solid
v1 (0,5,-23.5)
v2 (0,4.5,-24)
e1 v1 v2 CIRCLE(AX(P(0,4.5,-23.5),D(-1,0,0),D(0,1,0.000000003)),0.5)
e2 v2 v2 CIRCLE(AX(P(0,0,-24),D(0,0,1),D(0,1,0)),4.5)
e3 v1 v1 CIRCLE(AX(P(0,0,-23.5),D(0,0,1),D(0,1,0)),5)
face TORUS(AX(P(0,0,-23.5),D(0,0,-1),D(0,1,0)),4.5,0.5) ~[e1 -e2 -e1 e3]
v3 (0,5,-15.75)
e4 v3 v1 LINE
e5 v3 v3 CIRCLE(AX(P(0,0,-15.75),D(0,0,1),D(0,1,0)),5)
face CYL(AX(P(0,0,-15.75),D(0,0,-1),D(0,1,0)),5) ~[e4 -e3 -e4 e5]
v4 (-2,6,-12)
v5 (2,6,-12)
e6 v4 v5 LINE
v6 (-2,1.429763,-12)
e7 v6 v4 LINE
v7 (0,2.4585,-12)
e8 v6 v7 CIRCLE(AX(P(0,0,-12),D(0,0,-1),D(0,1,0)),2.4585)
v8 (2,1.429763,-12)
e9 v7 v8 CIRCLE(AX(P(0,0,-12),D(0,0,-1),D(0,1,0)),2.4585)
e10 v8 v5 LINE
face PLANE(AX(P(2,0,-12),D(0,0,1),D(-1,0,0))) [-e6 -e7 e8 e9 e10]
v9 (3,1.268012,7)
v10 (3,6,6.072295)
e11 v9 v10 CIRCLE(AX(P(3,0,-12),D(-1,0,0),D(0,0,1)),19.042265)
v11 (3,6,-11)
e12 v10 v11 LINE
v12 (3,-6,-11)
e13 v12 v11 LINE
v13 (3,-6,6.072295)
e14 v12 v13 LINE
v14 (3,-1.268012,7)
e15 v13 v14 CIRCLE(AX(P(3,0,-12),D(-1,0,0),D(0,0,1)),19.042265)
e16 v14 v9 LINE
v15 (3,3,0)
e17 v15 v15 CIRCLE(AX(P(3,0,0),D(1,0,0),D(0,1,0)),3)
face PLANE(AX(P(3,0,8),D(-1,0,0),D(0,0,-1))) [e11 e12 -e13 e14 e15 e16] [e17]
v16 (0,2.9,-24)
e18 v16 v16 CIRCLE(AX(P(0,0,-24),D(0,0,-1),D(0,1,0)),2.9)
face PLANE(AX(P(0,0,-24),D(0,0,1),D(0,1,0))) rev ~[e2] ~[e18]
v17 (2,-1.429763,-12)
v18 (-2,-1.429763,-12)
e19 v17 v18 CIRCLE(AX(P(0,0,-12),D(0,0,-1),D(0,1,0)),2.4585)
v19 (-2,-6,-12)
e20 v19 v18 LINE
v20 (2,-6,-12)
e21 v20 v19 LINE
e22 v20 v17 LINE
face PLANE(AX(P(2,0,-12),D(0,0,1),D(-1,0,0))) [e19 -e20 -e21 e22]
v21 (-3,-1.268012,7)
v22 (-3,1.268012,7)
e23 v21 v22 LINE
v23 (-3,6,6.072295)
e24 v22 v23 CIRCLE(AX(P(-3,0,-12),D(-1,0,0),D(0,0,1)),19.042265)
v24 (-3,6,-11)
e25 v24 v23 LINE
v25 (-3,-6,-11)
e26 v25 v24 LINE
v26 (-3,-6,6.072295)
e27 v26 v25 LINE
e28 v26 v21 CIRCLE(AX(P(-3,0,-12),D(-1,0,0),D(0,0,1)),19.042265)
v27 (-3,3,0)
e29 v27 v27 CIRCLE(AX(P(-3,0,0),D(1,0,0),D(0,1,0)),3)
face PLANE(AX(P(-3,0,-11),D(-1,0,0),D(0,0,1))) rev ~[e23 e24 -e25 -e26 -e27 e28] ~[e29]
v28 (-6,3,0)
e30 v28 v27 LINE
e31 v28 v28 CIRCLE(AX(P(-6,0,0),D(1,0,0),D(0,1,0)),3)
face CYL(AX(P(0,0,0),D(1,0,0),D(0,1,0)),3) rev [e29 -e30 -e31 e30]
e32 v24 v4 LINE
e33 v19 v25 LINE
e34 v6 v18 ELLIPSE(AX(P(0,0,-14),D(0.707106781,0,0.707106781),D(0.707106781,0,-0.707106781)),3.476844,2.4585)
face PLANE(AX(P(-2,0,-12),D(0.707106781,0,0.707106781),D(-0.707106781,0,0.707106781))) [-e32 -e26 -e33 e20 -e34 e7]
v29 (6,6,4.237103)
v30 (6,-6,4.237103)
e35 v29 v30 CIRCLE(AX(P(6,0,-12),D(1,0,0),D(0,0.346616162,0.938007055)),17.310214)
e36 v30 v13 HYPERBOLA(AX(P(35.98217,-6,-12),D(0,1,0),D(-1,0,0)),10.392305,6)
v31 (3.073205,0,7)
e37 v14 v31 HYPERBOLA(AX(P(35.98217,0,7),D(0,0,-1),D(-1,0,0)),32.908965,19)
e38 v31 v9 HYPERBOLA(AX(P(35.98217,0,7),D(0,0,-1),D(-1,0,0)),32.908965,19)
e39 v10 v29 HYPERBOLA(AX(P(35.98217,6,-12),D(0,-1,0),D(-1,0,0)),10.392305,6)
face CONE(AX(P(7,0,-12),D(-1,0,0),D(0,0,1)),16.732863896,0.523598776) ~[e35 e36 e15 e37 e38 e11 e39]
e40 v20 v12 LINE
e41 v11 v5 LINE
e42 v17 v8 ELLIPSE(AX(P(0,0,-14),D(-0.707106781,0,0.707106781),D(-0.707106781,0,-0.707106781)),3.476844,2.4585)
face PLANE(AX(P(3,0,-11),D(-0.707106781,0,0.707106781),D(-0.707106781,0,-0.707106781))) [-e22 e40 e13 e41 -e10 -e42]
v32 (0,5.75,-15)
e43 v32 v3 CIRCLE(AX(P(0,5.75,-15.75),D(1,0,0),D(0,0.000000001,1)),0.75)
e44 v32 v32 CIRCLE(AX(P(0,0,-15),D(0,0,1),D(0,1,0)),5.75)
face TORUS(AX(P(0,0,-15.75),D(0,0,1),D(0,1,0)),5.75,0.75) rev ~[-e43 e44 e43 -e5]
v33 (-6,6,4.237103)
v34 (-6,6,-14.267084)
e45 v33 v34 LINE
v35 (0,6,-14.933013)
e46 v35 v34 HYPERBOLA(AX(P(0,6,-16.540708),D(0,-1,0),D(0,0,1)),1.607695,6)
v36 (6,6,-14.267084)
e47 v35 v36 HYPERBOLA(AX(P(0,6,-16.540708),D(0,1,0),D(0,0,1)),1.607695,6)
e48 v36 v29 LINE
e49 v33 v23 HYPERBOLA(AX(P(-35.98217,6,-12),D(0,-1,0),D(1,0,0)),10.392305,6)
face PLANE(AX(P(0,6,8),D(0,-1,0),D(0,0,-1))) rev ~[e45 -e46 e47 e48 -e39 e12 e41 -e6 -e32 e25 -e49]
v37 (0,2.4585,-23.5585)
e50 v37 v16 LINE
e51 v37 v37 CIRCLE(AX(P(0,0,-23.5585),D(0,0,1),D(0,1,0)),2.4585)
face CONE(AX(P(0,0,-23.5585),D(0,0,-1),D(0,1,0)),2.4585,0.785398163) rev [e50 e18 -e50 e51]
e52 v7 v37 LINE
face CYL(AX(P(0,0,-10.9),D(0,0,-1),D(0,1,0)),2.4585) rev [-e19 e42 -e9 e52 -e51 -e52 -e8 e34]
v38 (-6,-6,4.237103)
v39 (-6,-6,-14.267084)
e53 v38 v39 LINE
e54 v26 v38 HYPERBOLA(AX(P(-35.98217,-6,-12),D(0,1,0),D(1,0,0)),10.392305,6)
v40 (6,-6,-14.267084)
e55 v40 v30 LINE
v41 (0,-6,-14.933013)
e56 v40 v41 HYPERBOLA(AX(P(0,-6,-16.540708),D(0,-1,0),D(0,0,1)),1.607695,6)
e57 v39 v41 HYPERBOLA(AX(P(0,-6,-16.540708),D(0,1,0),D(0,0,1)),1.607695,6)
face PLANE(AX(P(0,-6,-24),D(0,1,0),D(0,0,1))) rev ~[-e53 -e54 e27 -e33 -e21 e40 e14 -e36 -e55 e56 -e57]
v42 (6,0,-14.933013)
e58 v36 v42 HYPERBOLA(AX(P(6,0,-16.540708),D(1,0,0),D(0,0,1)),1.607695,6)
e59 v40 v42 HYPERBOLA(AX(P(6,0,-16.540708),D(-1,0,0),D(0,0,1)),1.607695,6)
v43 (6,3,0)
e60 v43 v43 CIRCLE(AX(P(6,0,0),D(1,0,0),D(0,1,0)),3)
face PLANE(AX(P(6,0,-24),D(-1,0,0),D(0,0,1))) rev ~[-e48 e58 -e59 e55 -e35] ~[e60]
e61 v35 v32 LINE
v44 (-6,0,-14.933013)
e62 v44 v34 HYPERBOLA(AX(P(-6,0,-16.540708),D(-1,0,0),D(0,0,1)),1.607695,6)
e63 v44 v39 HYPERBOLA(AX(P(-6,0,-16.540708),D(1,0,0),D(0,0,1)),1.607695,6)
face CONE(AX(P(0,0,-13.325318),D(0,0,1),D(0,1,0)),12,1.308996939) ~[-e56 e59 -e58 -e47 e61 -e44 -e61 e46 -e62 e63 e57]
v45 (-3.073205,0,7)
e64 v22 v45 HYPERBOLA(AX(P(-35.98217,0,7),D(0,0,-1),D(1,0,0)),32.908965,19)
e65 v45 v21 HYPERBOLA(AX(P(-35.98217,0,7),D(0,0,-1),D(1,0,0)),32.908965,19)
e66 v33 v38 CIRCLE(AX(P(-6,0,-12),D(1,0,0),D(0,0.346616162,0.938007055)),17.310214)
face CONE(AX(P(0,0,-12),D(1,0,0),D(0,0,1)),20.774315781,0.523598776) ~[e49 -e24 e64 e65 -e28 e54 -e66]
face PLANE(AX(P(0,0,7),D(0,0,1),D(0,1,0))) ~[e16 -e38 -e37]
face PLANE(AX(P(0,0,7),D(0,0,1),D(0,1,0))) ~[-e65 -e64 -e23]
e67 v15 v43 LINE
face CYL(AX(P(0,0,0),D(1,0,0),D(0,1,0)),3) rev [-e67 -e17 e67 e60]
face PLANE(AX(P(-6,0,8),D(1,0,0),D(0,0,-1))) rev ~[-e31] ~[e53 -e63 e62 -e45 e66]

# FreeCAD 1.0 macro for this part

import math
import FreeCAD as App
import Part
import Sketcher
Q = App.Units.Quantity

doc = App.newDocument("Part")
body = doc.addObject("PartDesign::Body", "Body")

# Sketch on YZ plane
sketch1 = doc.addObject("Sketcher::SketchObject", "Sketch")
body.addObject(sketch1)
sketch1.AttachmentSupport = (doc.YZ_Plane, [""])
sketch1.MapMode = "FlatFace"
sketch1.addGeometry([
    Part.LineSegment(App.Vector(12, 7, 0), App.Vector(0, 7, 0)),  # 0
    Part.LineSegment(App.Vector(0, 7, 0), App.Vector(0, -24, 0)),  # 1
    Part.LineSegment(App.Vector(0, -24, 0), App.Vector(4.5, -24, 0)),  # 2
    Part.ArcOfCircle(Part.Circle(App.Vector(4.5, -23.5, 0), App.Vector(0, 0, 1), 0.5), math.radians(-90), math.radians(0)),  # 3
    Part.LineSegment(App.Vector(5, -23.5, 0), App.Vector(5, -15.75, 0)),  # 4
    Part.ArcOfCircle(Part.Circle(App.Vector(5.75, -15.75, 0), App.Vector(0, 0, 1), 0.75), math.radians(90), math.radians(180)),  # 5
    Part.LineSegment(App.Vector(5.75, -15, 0), App.Vector(12, -13.325318, 0)),  # 6
    Part.LineSegment(App.Vector(12, -13.325318, 0), App.Vector(12, 7, 0)),  # 7
], False)
sketch1.addConstraint([
    Sketcher.Constraint("Coincident", 0, 2, 1, 1),
    Sketcher.Constraint("Coincident", 1, 2, 2, 1),
    Sketcher.Constraint("Tangent", 2, 2, 3, 1),
    Sketcher.Constraint("Tangent", 3, 2, 4, 1),
    Sketcher.Constraint("Tangent", 4, 2, 5, 2),
    Sketcher.Constraint("Coincident", 5, 1, 6, 1),
    Sketcher.Constraint("Coincident", 6, 2, 7, 1),
    Sketcher.Constraint("Coincident", 7, 2, 0, 1),
    Sketcher.Constraint("Horizontal", 0),
    Sketcher.Constraint("Vertical", 1),
    Sketcher.Constraint("Horizontal", 2),
    Sketcher.Constraint("Vertical", 4),
    Sketcher.Constraint("Vertical", 7),
    Sketcher.Constraint("PointOnObject", 0, 2, -2),
    Sketcher.Constraint("Radius", 3, 0.5),
    Sketcher.Constraint("DistanceX", 0, 2, 0, 1, 12.0),
    Sketcher.Constraint("DistanceY", 1, 2, 1, 1, 31.0),
    Sketcher.Constraint("Angle", 6, Q("15 deg")),
    Sketcher.Constraint("Radius", 5, 0.75),
    Sketcher.Constraint("DistanceX", 2, 1, 2, 2, 4.5),
    Sketcher.Constraint("DistanceY", -1, 1, 0, 2, 7.0),
    Sketcher.Constraint("DistanceY", 5, 1, -1, 1, 15.0),
    Sketcher.Constraint("DistanceX", -1, 1, 5, 1, 5.75),
])
revolution = doc.addObject("PartDesign::Revolution", "Revolution")
body.addObject(revolution)
revolution.Profile = sketch1
revolution.ReferenceAxis = (sketch1, ["V_Axis"])
revolution.Angle = 360

# Sketch on XZ plane
sketch2 = doc.addObject("Sketcher::SketchObject", "Sketch001")
body.addObject(sketch2)
sketch2.AttachmentSupport = (doc.XZ_Plane, [""])
sketch2.MapMode = "FlatFace"
sketch2.addGeometry([
    Part.LineSegment(App.Vector(-3, -11, 0), App.Vector(-3, 8, 0)),  # 0
    Part.LineSegment(App.Vector(-3, 8, 0), App.Vector(3, 8, 0)),  # 1
    Part.LineSegment(App.Vector(3, 8, 0), App.Vector(3, -11, 0)),  # 2
    Part.LineSegment(App.Vector(3, -11, 0), App.Vector(2, -12, 0)),  # 3
    Part.LineSegment(App.Vector(2, -12, 0), App.Vector(-2, -12, 0)),  # 4
    Part.LineSegment(App.Vector(-2, -12, 0), App.Vector(-3, -11, 0)),  # 5
], False)
sketch2.addConstraint([
    Sketcher.Constraint("Coincident", 0, 2, 1, 1),
    Sketcher.Constraint("Coincident", 1, 2, 2, 1),
    Sketcher.Constraint("Coincident", 2, 2, 3, 1),
    Sketcher.Constraint("Coincident", 3, 2, 4, 1),
    Sketcher.Constraint("Coincident", 4, 2, 5, 1),
    Sketcher.Constraint("Coincident", 5, 2, 0, 1),
    Sketcher.Constraint("Vertical", 0),
    Sketcher.Constraint("Horizontal", 1),
    Sketcher.Constraint("Vertical", 2),
    Sketcher.Constraint("Horizontal", 4),
    Sketcher.Constraint("Symmetric", 2, 2, 5, 2, -2),
    Sketcher.Constraint("Perpendicular", 3, 5),
    Sketcher.Constraint("Equal", 3, 5),
    Sketcher.Constraint("DistanceX", 1, 1, 1, 2, 6.0),
    Sketcher.Constraint("DistanceX", 4, 2, 4, 1, 4.0),
    Sketcher.Constraint("DistanceY", 0, 1, 0, 2, 19.0),
    Sketcher.Constraint("DistanceY", -1, 1, 0, 2, 8.0),
])
pocket1 = doc.addObject("PartDesign::Pocket", "Pocket")
body.addObject(pocket1)
pocket1.Profile = sketch2
pocket1.Type = "ThroughAll"
pocket1.Midplane = True

# Sketch on YZ plane
sketch3 = doc.addObject("Sketcher::SketchObject", "Sketch002")
body.addObject(sketch3)
sketch3.AttachmentSupport = (doc.YZ_Plane, [""])
sketch3.MapMode = "FlatFace"
sketch3.addGeometry([
    Part.LineSegment(App.Vector(-18, 20, 0), App.Vector(-18, -24, 0)),  # 0
    Part.LineSegment(App.Vector(-18, -24, 0), App.Vector(-6, -24, 0)),  # 1
    Part.LineSegment(App.Vector(-6, -24, 0), App.Vector(-6, 8, 0)),  # 2
    Part.LineSegment(App.Vector(-6, 8, 0), App.Vector(6, 8, 0)),  # 3
    Part.LineSegment(App.Vector(6, 8, 0), App.Vector(6, -24, 0)),  # 4
    Part.LineSegment(App.Vector(6, -24, 0), App.Vector(18, -24, 0)),  # 5
    Part.LineSegment(App.Vector(18, -24, 0), App.Vector(18, 20, 0)),  # 6
    Part.LineSegment(App.Vector(18, 20, 0), App.Vector(-18, 20, 0)),  # 7
], False)
sketch3.addConstraint([
    Sketcher.Constraint("Coincident", 0, 2, 1, 1),
    Sketcher.Constraint("Coincident", 1, 2, 2, 1),
    Sketcher.Constraint("Coincident", 2, 2, 3, 1),
    Sketcher.Constraint("Coincident", 3, 2, 4, 1),
    Sketcher.Constraint("Coincident", 4, 2, 5, 1),
    Sketcher.Constraint("Coincident", 5, 2, 6, 1),
    Sketcher.Constraint("Coincident", 6, 2, 7, 1),
    Sketcher.Constraint("Coincident", 7, 2, 0, 1),
    Sketcher.Constraint("Vertical", 0),
    Sketcher.Constraint("Horizontal", 1),
    Sketcher.Constraint("Vertical", 2),
    Sketcher.Constraint("Horizontal", 3),
    Sketcher.Constraint("Vertical", 4),
    Sketcher.Constraint("Horizontal", 5),
    Sketcher.Constraint("Vertical", 6),
    Sketcher.Constraint("Horizontal", 7),
    Sketcher.Constraint("Symmetric", 1, 2, 4, 2, -2),
    Sketcher.Constraint("Equal", 1, 3),
    Sketcher.Constraint("Equal", 3, 5),
    Sketcher.Constraint("DistanceX", 1, 1, 1, 2, 12.0),
    Sketcher.Constraint("DistanceY", 0, 2, 0, 1, 44.0),
    Sketcher.Constraint("DistanceY", 2, 1, 2, 2, 32.0),
    Sketcher.Constraint("DistanceY", 0, 2, -1, 1, 24.0),
])
pocket2 = doc.addObject("PartDesign::Pocket", "Pocket001")
body.addObject(pocket2)
pocket2.Profile = sketch3
pocket2.Type = "ThroughAll"
pocket2.Midplane = True

# Sketch on XZ plane
sketch4 = doc.addObject("Sketcher::SketchObject", "Sketch003")
body.addObject(sketch4)
sketch4.AttachmentSupport = (doc.XZ_Plane, [""])
sketch4.MapMode = "FlatFace"
sketch4.addGeometry([
    Part.LineSegment(App.Vector(-18, 20, 0), App.Vector(18, 20, 0)),  # 0
    Part.LineSegment(App.Vector(18, 20, 0), App.Vector(18, -24, 0)),  # 1
    Part.LineSegment(App.Vector(18, -24, 0), App.Vector(6, -24, 0)),  # 2
    Part.LineSegment(App.Vector(6, -24, 0), App.Vector(6, 8, 0)),  # 3
    Part.LineSegment(App.Vector(6, 8, 0), App.Vector(-6, 8, 0)),  # 4
    Part.LineSegment(App.Vector(-6, 8, 0), App.Vector(-6, -24, 0)),  # 5
    Part.LineSegment(App.Vector(-6, -24, 0), App.Vector(-18, -24, 0)),  # 6
    Part.LineSegment(App.Vector(-18, -24, 0), App.Vector(-18, 20, 0)),  # 7
], False)
sketch4.addConstraint([
    Sketcher.Constraint("Coincident", 0, 2, 1, 1),
    Sketcher.Constraint("Coincident", 1, 2, 2, 1),
    Sketcher.Constraint("Coincident", 2, 2, 3, 1),
    Sketcher.Constraint("Coincident", 3, 2, 4, 1),
    Sketcher.Constraint("Coincident", 4, 2, 5, 1),
    Sketcher.Constraint("Coincident", 5, 2, 6, 1),
    Sketcher.Constraint("Coincident", 6, 2, 7, 1),
    Sketcher.Constraint("Coincident", 7, 2, 0, 1),
    Sketcher.Constraint("Horizontal", 0),
    Sketcher.Constraint("Vertical", 1),
    Sketcher.Constraint("Horizontal", 2),
    Sketcher.Constraint("Vertical", 3),
    Sketcher.Constraint("Horizontal", 4),
    Sketcher.Constraint("Vertical", 5),
    Sketcher.Constraint("Horizontal", 6),
    Sketcher.Constraint("Vertical", 7),
    Sketcher.Constraint("Symmetric", 2, 2, 5, 2, -2),
    Sketcher.Constraint("Equal", 2, 4),
    Sketcher.Constraint("Equal", 4, 6),
    Sketcher.Constraint("DistanceX", 0, 1, 0, 2, 36.0),
    Sketcher.Constraint("DistanceY", 1, 2, 1, 1, 44.0),
    Sketcher.Constraint("DistanceY", 3, 1, 3, 2, 32.0),
    Sketcher.Constraint("DistanceY", -1, 1, 0, 2, 20.0),
])
pocket3 = doc.addObject("PartDesign::Pocket", "Pocket002")
body.addObject(pocket3)
pocket3.Profile = sketch4
pocket3.Type = "ThroughAll"
pocket3.Midplane = True

# Sketch on XY plane
sketch5 = doc.addObject("Sketcher::SketchObject", "Sketch004")
body.addObject(sketch5)
sketch5.AttachmentSupport = (doc.XY_Plane, [""])
sketch5.MapMode = "FlatFace"
sketch5.addGeometry([
    Part.LineSegment(App.Vector(-8.1, 3, 0), App.Vector(-8.1, 0, 0)),
    Part.LineSegment(App.Vector(-8.1, 0, 0), App.Vector(8.1, 0, 0)),
    Part.LineSegment(App.Vector(8.1, 0, 0), App.Vector(8.1, 3, 0)),
    Part.LineSegment(App.Vector(8.1, 3, 0), App.Vector(-8.1, 3, 0)),
], False)
sketch5.addConstraint([
    Sketcher.Constraint("Coincident", 0, 2, 1, 1),
    Sketcher.Constraint("Coincident", 1, 2, 2, 1),
    Sketcher.Constraint("Coincident", 2, 2, 3, 1),
    Sketcher.Constraint("Coincident", 3, 2, 0, 1),
    Sketcher.Constraint("Vertical", 0),
    Sketcher.Constraint("Horizontal", 1),
    Sketcher.Constraint("Vertical", 2),
    Sketcher.Constraint("Horizontal", 3),
    Sketcher.Constraint("Symmetric", 0, 2, 1, 2, -1, 1),
    Sketcher.Constraint("DistanceY", 0, 2, 0, 1, 3.0),
    Sketcher.Constraint("DistanceX", 1, 1, 1, 2, 16.2),
])
groove = doc.addObject("PartDesign::Groove", "Groove")
body.addObject(groove)
groove.Profile = sketch5
groove.ReferenceAxis = (sketch5, ["H_Axis"])
groove.Angle = 360

# Sketch on YZ plane
sketch6 = doc.addObject("Sketcher::SketchObject", "Sketch005")
body.addObject(sketch6)
sketch6.AttachmentSupport = (doc.YZ_Plane, [""])
sketch6.MapMode = "FlatFace"
sketch6.addGeometry([
    Part.LineSegment(App.Vector(2.4585, -10.9, 0), App.Vector(0, -10.9, 0)),  # 0
    Part.LineSegment(App.Vector(0, -10.9, 0), App.Vector(0, -24.1, 0)),  # 1
    Part.LineSegment(App.Vector(0, -24.1, 0), App.Vector(3, -24.1, 0)),  # 2
    Part.LineSegment(App.Vector(3, -24.1, 0), App.Vector(2.4585, -23.5585, 0)),  # 3
    Part.LineSegment(App.Vector(2.4585, -23.5585, 0), App.Vector(2.4585, -10.9, 0)),  # 4
], False)
sketch6.addConstraint([
    Sketcher.Constraint("Coincident", 0, 2, 1, 1),
    Sketcher.Constraint("Coincident", 1, 2, 2, 1),
    Sketcher.Constraint("Coincident", 2, 2, 3, 1),
    Sketcher.Constraint("Coincident", 3, 2, 4, 1),
    Sketcher.Constraint("Coincident", 4, 2, 0, 1),
    Sketcher.Constraint("Horizontal", 0),
    Sketcher.Constraint("Vertical", 1),
    Sketcher.Constraint("Horizontal", 2),
    Sketcher.Constraint("Vertical", 4),
    Sketcher.Constraint("PointOnObject", 0, 2, -2),
    Sketcher.Constraint("DistanceX", 2, 1, 2, 2, 3.0),
    Sketcher.Constraint("Angle", 3, Q("135 deg")),
    Sketcher.Constraint("DistanceY", 1, 2, 1, 1, 13.2),
    Sketcher.Constraint("DistanceY", 0, 2, -1, 1, 10.9),
    Sketcher.Constraint("DistanceX", 0, 2, 0, 1, 2.4585),
])
groove2 = doc.addObject("PartDesign::Groove", "Groove001")
body.addObject(groove2)
groove2.Profile = sketch6
groove2.ReferenceAxis = (sketch6, ["V_Axis"])
groove2.Angle = 360

# Sketch on XZ plane
sketch7 = doc.addObject("Sketcher::SketchObject", "Sketch006")
body.addObject(sketch7)
sketch7.AttachmentSupport = (doc.XZ_Plane, [""])
sketch7.MapMode = "FlatFace"
sketch7.addGeometry([
    Part.LineSegment(App.Vector(-7, 18.58927, 0), App.Vector(0, 22.630722, 0)),  # 0
    Part.LineSegment(App.Vector(0, 22.630722, 0), App.Vector(7, 18.58927, 0)),  # 1
    Part.LineSegment(App.Vector(7, 18.58927, 0), App.Vector(7, 4.732864, 0)),  # 2
    Part.LineSegment(App.Vector(7, 4.732864, 0), App.Vector(0, 8.774316, 0)),  # 3
    Part.LineSegment(App.Vector(0, 8.774316, 0), App.Vector(-7, 4.732864, 0)),  # 4
    Part.LineSegment(App.Vector(-7, 4.732864, 0), App.Vector(-7, 18.58927, 0)),  # 5
], False)
sketch7.addGeometry(Part.LineSegment(App.Vector(-7, -12, 0), App.Vector(7, -12, 0)), True)  # axis
sketch7.addConstraint([
    Sketcher.Constraint("Coincident", 0, 2, 1, 1),
    Sketcher.Constraint("Coincident", 1, 2, 2, 1),
    Sketcher.Constraint("Coincident", 2, 2, 3, 1),
    Sketcher.Constraint("Coincident", 3, 2, 4, 1),
    Sketcher.Constraint("Coincident", 4, 2, 5, 1),
    Sketcher.Constraint("Coincident", 5, 2, 0, 1),
    Sketcher.Constraint("Vertical", 2),
    Sketcher.Constraint("Vertical", 5),
    Sketcher.Constraint("Horizontal", 6),
    Sketcher.Constraint("Symmetric", 2, 2, 4, 2, -2),
    Sketcher.Constraint("PointOnObject", 0, 2, -2),
    Sketcher.Constraint("PointOnObject", 3, 2, -2),
    Sketcher.Constraint("Parallel", 1, 3),
    Sketcher.Constraint("Parallel", 0, 4),
    Sketcher.Constraint("Vertical", 5, 2, 6, 1),
    Sketcher.Constraint("Vertical", 2, 2, 6, 2),
    Sketcher.Constraint("DistanceX", 6, 1, 6, 2, 14.0),
    Sketcher.Constraint("Angle", 0, Q("30 deg")),
    Sketcher.Constraint("DistanceY", 6, 1, -1, 1, 12.0),
    Sketcher.Constraint("DistanceY", 2, 2, 2, 1, 13.856406),
    Sketcher.Constraint("DistanceY", -1, 1, 1, 2, 18.58927),
])
groove3 = doc.addObject("PartDesign::Groove", "Groove002")
body.addObject(groove3)
groove3.Profile = sketch7
groove3.ReferenceAxis = (sketch7, ["Axis0"])
groove3.Angle = 90

# Sketch on XZ plane
sketch8 = doc.addObject("Sketcher::SketchObject", "Sketch007")
body.addObject(sketch8)
sketch8.AttachmentSupport = (doc.XZ_Plane, [""])
sketch8.MapMode = "FlatFace"
sketch8.addGeometry([
    Part.LineSegment(App.Vector(-7, 18.58927, 0), App.Vector(0, 22.630722, 0)),  # 0
    Part.LineSegment(App.Vector(0, 22.630722, 0), App.Vector(7, 18.58927, 0)),  # 1
    Part.LineSegment(App.Vector(7, 18.58927, 0), App.Vector(7, 4.732864, 0)),  # 2
    Part.LineSegment(App.Vector(7, 4.732864, 0), App.Vector(0, 8.774316, 0)),  # 3
    Part.LineSegment(App.Vector(0, 8.774316, 0), App.Vector(-7, 4.732864, 0)),  # 4
    Part.LineSegment(App.Vector(-7, 4.732864, 0), App.Vector(-7, 18.58927, 0)),  # 5
], False)
sketch8.addGeometry(Part.LineSegment(App.Vector(7, -12, 0), App.Vector(-7, -12, 0)), True)  # axis
sketch8.addConstraint([
    Sketcher.Constraint("Coincident", 0, 2, 1, 1),
    Sketcher.Constraint("Coincident", 1, 2, 2, 1),
    Sketcher.Constraint("Coincident", 2, 2, 3, 1),
    Sketcher.Constraint("Coincident", 3, 2, 4, 1),
    Sketcher.Constraint("Coincident", 4, 2, 5, 1),
    Sketcher.Constraint("Coincident", 5, 2, 0, 1),
    Sketcher.Constraint("Vertical", 2),
    Sketcher.Constraint("Vertical", 5),
    Sketcher.Constraint("Horizontal", 6),
    Sketcher.Constraint("Symmetric", 2, 2, 4, 2, -2),
    Sketcher.Constraint("PointOnObject", 0, 2, -2),
    Sketcher.Constraint("PointOnObject", 3, 2, -2),
    Sketcher.Constraint("Parallel", 1, 3),
    Sketcher.Constraint("Parallel", 0, 4),
    Sketcher.Constraint("Vertical", 2, 2, 6, 1),
    Sketcher.Constraint("Vertical", 5, 2, 6, 2),
    Sketcher.Constraint("DistanceX", 6, 2, 6, 1, 14.0),
    Sketcher.Constraint("Angle", 0, Q("30 deg")),
    Sketcher.Constraint("DistanceY", 6, 1, -1, 1, 12.0),
    Sketcher.Constraint("DistanceY", 2, 2, 2, 1, 13.856406),
    Sketcher.Constraint("DistanceY", -1, 1, 1, 2, 18.58927),
])
groove4 = doc.addObject("PartDesign::Groove", "Groove003")
body.addObject(groove4)
groove4.Profile = sketch8
groove4.ReferenceAxis = (sketch8, ["Axis0"])
groove4.Angle = 90

doc.recompute()
